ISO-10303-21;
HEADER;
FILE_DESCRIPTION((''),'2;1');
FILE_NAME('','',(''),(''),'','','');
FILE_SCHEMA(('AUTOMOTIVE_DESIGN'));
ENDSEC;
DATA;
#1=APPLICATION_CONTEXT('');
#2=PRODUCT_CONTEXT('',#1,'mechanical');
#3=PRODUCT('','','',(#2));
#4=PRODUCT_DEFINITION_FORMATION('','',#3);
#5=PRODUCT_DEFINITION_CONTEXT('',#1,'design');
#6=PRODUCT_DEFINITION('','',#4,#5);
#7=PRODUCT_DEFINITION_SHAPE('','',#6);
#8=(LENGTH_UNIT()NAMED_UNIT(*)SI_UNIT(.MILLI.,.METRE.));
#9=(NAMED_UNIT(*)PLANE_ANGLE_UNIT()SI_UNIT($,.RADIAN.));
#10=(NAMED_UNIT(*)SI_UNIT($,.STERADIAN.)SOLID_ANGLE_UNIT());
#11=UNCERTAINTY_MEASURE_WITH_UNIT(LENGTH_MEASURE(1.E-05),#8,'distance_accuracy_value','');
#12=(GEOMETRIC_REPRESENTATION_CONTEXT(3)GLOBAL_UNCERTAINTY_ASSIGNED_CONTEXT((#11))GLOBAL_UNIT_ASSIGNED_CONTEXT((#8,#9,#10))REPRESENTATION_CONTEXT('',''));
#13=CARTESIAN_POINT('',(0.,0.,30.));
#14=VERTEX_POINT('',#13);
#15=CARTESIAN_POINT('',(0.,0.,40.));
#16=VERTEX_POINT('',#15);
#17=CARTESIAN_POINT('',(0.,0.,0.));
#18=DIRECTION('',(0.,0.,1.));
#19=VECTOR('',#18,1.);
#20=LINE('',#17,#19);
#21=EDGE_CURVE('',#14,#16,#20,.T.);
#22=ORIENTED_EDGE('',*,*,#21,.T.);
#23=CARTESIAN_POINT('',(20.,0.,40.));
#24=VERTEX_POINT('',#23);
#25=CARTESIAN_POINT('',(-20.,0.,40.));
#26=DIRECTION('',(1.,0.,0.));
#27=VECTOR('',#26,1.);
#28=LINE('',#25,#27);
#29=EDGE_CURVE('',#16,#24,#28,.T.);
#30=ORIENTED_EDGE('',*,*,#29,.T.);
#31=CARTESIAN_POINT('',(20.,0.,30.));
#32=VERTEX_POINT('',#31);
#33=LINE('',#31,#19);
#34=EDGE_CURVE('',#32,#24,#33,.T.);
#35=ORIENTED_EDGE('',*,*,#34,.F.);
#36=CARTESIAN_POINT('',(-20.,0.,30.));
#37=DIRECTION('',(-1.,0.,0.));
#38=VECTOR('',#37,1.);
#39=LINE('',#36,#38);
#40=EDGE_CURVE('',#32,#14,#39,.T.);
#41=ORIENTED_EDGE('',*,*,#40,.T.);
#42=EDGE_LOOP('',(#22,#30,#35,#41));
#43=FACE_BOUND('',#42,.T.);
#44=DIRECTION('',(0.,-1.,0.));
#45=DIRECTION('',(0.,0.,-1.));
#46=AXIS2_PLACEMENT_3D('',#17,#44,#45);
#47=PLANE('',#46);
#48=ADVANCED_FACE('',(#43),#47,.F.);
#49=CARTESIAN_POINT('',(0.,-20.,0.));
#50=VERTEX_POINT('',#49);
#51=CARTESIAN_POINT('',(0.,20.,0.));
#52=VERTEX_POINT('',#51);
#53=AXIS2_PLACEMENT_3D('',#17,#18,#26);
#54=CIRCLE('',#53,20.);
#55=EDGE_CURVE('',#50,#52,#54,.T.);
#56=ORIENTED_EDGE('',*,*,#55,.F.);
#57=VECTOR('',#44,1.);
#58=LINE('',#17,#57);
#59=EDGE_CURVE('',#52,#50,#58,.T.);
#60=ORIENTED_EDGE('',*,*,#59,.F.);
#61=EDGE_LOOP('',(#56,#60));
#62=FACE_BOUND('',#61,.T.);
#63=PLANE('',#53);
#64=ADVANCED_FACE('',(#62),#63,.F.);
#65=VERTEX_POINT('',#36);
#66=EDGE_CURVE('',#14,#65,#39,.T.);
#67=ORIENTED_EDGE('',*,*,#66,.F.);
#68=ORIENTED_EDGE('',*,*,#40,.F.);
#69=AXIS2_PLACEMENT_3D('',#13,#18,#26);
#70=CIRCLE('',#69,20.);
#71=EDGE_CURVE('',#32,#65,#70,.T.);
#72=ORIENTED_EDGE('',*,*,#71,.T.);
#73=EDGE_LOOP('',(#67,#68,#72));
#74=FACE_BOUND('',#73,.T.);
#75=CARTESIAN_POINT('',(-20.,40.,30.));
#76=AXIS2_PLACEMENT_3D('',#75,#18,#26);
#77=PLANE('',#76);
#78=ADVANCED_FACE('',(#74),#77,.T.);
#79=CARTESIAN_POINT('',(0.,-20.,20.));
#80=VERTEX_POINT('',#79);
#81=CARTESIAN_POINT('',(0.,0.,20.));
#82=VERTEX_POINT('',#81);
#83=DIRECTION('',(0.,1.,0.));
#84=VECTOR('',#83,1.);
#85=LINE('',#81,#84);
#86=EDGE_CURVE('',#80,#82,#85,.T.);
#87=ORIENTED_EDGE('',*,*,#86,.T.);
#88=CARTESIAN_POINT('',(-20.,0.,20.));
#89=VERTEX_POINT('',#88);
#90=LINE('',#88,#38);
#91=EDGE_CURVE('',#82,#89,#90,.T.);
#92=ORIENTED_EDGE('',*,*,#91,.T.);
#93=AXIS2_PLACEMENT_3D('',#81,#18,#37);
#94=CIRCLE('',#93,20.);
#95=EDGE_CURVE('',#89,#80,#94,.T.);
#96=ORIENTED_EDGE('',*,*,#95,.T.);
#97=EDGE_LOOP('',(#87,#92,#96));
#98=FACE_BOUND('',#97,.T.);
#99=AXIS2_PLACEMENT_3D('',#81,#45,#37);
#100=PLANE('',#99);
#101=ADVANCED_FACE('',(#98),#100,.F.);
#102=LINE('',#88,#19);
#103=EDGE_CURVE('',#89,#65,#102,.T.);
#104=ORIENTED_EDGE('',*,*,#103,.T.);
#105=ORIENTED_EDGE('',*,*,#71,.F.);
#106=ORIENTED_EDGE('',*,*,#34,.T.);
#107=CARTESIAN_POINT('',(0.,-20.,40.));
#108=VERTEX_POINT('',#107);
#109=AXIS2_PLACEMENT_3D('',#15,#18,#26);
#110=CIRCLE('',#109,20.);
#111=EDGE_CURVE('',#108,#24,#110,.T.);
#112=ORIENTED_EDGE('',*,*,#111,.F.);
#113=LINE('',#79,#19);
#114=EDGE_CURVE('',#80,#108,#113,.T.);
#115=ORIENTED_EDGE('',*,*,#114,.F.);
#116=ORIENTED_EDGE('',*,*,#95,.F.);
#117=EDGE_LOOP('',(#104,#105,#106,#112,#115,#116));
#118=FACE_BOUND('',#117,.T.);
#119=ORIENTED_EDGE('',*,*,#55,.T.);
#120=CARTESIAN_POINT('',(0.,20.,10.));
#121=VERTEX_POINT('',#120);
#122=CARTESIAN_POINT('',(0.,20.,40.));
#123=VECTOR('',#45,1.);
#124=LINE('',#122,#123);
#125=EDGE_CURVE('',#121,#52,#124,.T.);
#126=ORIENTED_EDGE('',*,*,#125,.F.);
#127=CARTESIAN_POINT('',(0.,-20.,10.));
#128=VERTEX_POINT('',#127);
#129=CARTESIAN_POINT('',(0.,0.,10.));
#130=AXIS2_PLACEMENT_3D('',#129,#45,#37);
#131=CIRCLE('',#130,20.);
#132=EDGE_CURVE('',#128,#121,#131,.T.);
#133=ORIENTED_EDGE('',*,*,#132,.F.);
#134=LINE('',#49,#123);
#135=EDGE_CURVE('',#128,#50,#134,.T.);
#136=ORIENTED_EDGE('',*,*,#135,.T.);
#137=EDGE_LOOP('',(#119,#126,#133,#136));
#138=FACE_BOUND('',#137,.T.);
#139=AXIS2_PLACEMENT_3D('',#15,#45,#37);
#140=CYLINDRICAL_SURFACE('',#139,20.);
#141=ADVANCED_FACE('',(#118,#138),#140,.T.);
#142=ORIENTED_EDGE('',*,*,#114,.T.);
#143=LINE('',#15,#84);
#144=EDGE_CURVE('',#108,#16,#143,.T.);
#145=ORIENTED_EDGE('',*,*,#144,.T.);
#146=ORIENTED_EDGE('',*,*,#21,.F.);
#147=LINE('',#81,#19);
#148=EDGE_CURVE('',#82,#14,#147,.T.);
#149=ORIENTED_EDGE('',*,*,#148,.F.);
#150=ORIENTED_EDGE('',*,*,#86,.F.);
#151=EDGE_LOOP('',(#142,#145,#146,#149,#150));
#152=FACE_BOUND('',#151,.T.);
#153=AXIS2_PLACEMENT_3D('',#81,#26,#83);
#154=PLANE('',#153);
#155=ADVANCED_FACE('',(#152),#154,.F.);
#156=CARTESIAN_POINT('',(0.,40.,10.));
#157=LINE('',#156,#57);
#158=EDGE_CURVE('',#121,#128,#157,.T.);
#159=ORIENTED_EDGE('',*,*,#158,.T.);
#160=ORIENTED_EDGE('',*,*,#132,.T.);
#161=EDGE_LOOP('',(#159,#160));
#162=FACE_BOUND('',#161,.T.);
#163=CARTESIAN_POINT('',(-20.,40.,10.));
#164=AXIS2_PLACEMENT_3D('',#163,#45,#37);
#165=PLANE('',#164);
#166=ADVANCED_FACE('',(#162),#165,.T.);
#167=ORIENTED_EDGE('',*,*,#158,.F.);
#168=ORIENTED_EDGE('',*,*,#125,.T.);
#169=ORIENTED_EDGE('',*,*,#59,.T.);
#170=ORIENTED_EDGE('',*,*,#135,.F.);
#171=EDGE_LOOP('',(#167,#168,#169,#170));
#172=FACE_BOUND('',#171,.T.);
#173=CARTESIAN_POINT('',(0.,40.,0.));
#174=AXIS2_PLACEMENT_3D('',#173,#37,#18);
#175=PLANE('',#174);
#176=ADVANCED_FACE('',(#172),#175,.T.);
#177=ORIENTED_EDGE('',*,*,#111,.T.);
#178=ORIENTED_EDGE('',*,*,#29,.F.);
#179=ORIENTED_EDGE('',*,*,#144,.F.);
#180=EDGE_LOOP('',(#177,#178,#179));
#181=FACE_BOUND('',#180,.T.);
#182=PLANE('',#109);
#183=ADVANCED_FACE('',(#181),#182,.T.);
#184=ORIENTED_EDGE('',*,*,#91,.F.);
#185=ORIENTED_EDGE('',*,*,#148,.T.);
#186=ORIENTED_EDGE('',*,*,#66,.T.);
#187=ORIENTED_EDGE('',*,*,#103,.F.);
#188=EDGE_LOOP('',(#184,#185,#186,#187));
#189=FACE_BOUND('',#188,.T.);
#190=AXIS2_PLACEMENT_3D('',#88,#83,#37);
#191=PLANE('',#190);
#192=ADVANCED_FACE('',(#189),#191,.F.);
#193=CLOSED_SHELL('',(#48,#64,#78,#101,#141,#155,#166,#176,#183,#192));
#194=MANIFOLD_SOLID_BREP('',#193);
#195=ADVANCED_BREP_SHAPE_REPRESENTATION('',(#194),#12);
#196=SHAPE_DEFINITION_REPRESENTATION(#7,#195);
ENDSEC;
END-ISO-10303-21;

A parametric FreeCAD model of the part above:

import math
import FreeCAD as App
import Part
import Sketcher
Q = App.Units.Quantity

doc = App.newDocument("Part")
body = doc.addObject("PartDesign::Body", "Body")

# Sketch on XY plane
sketch1 = body.newObject("Sketcher::SketchObject", "Sketch")
sketch1.AttachmentSupport = (doc.getObject("XY_Plane"), [""])
sketch1.MapMode = "FlatFace"
sketch1.addGeometry(Part.Circle(App.Vector(0, 0, 0), App.Vector(0, 0, 1), 20), False)
sketch1.addConstraint(Sketcher.Constraint("Coincident", 0, 3, -1, 1))
sketch1.addConstraint(Sketcher.Constraint("Diameter", 0, Q("40 mm")))
pad1 = body.newObject("PartDesign::Pad", "Pad")
pad1.Profile = sketch1
pad1.Length = 40

# Sketch on XZ plane
sketch2 = body.newObject("Sketcher::SketchObject", "Sketch001")
sketch2.AttachmentSupport = (doc.getObject("XZ_Plane"), [""])
sketch2.MapMode = "FlatFace"
sketch2.addGeometry(Part.LineSegment(App.Vector(-20, 30, 0), App.Vector(-20, 40, 0)), False)
sketch2.addGeometry(Part.LineSegment(App.Vector(-20, 40, 0), App.Vector(0, 40, 0)), False)
sketch2.addGeometry(Part.LineSegment(App.Vector(0, 40, 0), App.Vector(0, 30, 0)), False)
sketch2.addGeometry(Part.LineSegment(App.Vector(0, 30, 0), App.Vector(-20, 30, 0)), False)
sketch2.addGeometry(Part.LineSegment(App.Vector(-20, 0, 0), App.Vector(-20, 10, 0)), False)
sketch2.addGeometry(Part.LineSegment(App.Vector(-20, 10, 0), App.Vector(0, 10, 0)), False)
sketch2.addGeometry(Part.LineSegment(App.Vector(0, 10, 0), App.Vector(0, 0, 0)), False)
sketch2.addGeometry(Part.LineSegment(App.Vector(0, 0, 0), App.Vector(-20, 0, 0)), False)
sketch2.addConstraint(Sketcher.Constraint("Coincident", 0, 2, 1, 1))
sketch2.addConstraint(Sketcher.Constraint("Coincident", 1, 2, 2, 1))
sketch2.addConstraint(Sketcher.Constraint("Coincident", 2, 2, 3, 1))
sketch2.addConstraint(Sketcher.Constraint("Coincident", 3, 2, 0, 1))
sketch2.addConstraint(Sketcher.Constraint("Coincident", 4, 2, 5, 1))
sketch2.addConstraint(Sketcher.Constraint("Coincident", 5, 2, 6, 1))
sketch2.addConstraint(Sketcher.Constraint("Coincident", 6, 2, 7, 1))
sketch2.addConstraint(Sketcher.Constraint("Coincident", 7, 2, 4, 1))
sketch2.addConstraint(Sketcher.Constraint("Vertical", 0))
sketch2.addConstraint(Sketcher.Constraint("Horizontal", 1))
sketch2.addConstraint(Sketcher.Constraint("Vertical", 2))
sketch2.addConstraint(Sketcher.Constraint("Horizontal", 3))
sketch2.addConstraint(Sketcher.Constraint("Vertical", 4))
sketch2.addConstraint(Sketcher.Constraint("Horizontal", 5))
sketch2.addConstraint(Sketcher.Constraint("Vertical", 6))
sketch2.addConstraint(Sketcher.Constraint("Horizontal", 7))
sketch2.addConstraint(Sketcher.Constraint("Coincident", 6, 2, -1, 1))
sketch2.addConstraint(Sketcher.Constraint("PointOnObject", 1, 2, -2))
sketch2.addConstraint(Sketcher.Constraint("Vertical", 3, 2, 4, 2))
sketch2.addConstraint(Sketcher.Constraint("Equal", 2, 4))
sketch2.addConstraint(Sketcher.Constraint("DistanceX", 1, 1, 1, 2, Q("20 mm")))
sketch2.addConstraint(Sketcher.Constraint("DistanceY", 0, 1, 0, 2, Q("10 mm")))
sketch2.addConstraint(Sketcher.Constraint("DistanceY", -1, 1, 0, 2, Q("40 mm")))
pocket1 = body.newObject("PartDesign::Pocket", "Pocket")
pocket1.Profile = sketch2
pocket1.Length = 40

# Sketch on XY plane
sketch3 = body.newObject("Sketcher::SketchObject", "Sketch002")
sketch3.AttachmentSupport = (doc.getObject("XY_Plane"), [""])
sketch3.MapMode = "FlatFace"
sketch3.AttachmentOffset = App.Placement(App.Vector(0, 0, 40), App.Rotation())
sketch3.addGeometry(Part.LineSegment(App.Vector(0, 20, 0), App.Vector(0, 0, 0)), False)
sketch3.addGeometry(Part.LineSegment(App.Vector(0, 0, 0), App.Vector(20, 0, 0)), False)
sketch3.addGeometry(Part.ArcOfCircle(Part.Circle(App.Vector(0, 0, 0), App.Vector(0, 0, 1), 20), math.radians(0), math.radians(90)), False)
sketch3.addConstraint(Sketcher.Constraint("Coincident", 0, 2, 1, 1))
sketch3.addConstraint(Sketcher.Constraint("Coincident", 1, 2, 2, 1))
sketch3.addConstraint(Sketcher.Constraint("Coincident", 2, 2, 0, 1))
sketch3.addConstraint(Sketcher.Constraint("Vertical", 0))
sketch3.addConstraint(Sketcher.Constraint("Horizontal", 1))
sketch3.addConstraint(Sketcher.Constraint("Coincident", 2, 3, -1, 1))
sketch3.addConstraint(Sketcher.Constraint("Coincident", 0, 2, -1, 1))
sketch3.addConstraint(Sketcher.Constraint("Radius", 2, Q("20 mm")))
pocket2 = body.newObject("PartDesign::Pocket", "Pocket001")
pocket2.Profile = sketch3
pocket2.Length = 10

# Sketch on XY plane
sketch4 = body.newObject("Sketcher::SketchObject", "Sketch003")
sketch4.AttachmentSupport = (doc.getObject("XY_Plane"), [""])
sketch4.MapMode = "FlatFace"
sketch4.AttachmentOffset = App.Placement(App.Vector(0, 0, 40), App.Rotation())
sketch4.addGeometry(Part.LineSegment(App.Vector(0, 0, 0), App.Vector(-20, 0, 0)), False)
sketch4.addGeometry(Part.ArcOfCircle(Part.Circle(App.Vector(0, 0, 0), App.Vector(0, 0, 1), 20), math.radians(180), math.radians(270)), False)
sketch4.addGeometry(Part.LineSegment(App.Vector(0, -20, 0), App.Vector(0, 0, 0)), False)
sketch4.addConstraint(Sketcher.Constraint("Coincident", 0, 2, 1, 1))
sketch4.addConstraint(Sketcher.Constraint("Coincident", 1, 2, 2, 1))
sketch4.addConstraint(Sketcher.Constraint("Coincident", 2, 2, 0, 1))
sketch4.addConstraint(Sketcher.Constraint("Horizontal", 0))
sketch4.addConstraint(Sketcher.Constraint("Vertical", 2))
sketch4.addConstraint(Sketcher.Constraint("Coincident", 1, 3, -1, 1))
sketch4.addConstraint(Sketcher.Constraint("Coincident", 2, 2, -1, 1))
sketch4.addConstraint(Sketcher.Constraint("Radius", 1, Q("20 mm")))
pocket3 = body.newObject("PartDesign::Pocket", "Pocket002")
pocket3.Profile = sketch4
pocket3.Length = 20

# Sketch on XZ plane
sketch5 = body.newObject("Sketcher::SketchObject", "Sketch004")
sketch5.AttachmentSupport = (doc.getObject("XZ_Plane"), [""])
sketch5.MapMode = "FlatFace"
sketch5.addGeometry(Part.LineSegment(App.Vector(-20, 0, 0), App.Vector(-20, 10, 0)), False)
sketch5.addGeometry(Part.LineSegment(App.Vector(-20, 10, 0), App.Vector(0, 10, 0)), False)
sketch5.addGeometry(Part.LineSegment(App.Vector(0, 10, 0), App.Vector(0, 0, 0)), False)
sketch5.addGeometry(Part.LineSegment(App.Vector(0, 0, 0), App.Vector(-20, 0, 0)), False)
sketch5.addConstraint(Sketcher.Constraint("Coincident", 0, 2, 1, 1))
sketch5.addConstraint(Sketcher.Constraint("Coincident", 1, 2, 2, 1))
sketch5.addConstraint(Sketcher.Constraint("Coincident", 2, 2, 3, 1))
sketch5.addConstraint(Sketcher.Constraint("Coincident", 3, 2, 0, 1))
sketch5.addConstraint(Sketcher.Constraint("Vertical", 0))
sketch5.addConstraint(Sketcher.Constraint("Horizontal", 1))
sketch5.addConstraint(Sketcher.Constraint("Vertical", 2))
sketch5.addConstraint(Sketcher.Constraint("Horizontal", 3))
sketch5.addConstraint(Sketcher.Constraint("Coincident", 2, 2, -1, 1))
sketch5.addConstraint(Sketcher.Constraint("DistanceX", 1, 1, 1, 2, Q("20 mm")))
sketch5.addConstraint(Sketcher.Constraint("DistanceY", 0, 1, 0, 2, Q("10 mm")))
pocket4 = body.newObject("PartDesign::Pocket", "Pocket003")
pocket4.Profile = sketch5
pocket4.Length = 20
pocket4.Reversed = True

doc.recompute()
